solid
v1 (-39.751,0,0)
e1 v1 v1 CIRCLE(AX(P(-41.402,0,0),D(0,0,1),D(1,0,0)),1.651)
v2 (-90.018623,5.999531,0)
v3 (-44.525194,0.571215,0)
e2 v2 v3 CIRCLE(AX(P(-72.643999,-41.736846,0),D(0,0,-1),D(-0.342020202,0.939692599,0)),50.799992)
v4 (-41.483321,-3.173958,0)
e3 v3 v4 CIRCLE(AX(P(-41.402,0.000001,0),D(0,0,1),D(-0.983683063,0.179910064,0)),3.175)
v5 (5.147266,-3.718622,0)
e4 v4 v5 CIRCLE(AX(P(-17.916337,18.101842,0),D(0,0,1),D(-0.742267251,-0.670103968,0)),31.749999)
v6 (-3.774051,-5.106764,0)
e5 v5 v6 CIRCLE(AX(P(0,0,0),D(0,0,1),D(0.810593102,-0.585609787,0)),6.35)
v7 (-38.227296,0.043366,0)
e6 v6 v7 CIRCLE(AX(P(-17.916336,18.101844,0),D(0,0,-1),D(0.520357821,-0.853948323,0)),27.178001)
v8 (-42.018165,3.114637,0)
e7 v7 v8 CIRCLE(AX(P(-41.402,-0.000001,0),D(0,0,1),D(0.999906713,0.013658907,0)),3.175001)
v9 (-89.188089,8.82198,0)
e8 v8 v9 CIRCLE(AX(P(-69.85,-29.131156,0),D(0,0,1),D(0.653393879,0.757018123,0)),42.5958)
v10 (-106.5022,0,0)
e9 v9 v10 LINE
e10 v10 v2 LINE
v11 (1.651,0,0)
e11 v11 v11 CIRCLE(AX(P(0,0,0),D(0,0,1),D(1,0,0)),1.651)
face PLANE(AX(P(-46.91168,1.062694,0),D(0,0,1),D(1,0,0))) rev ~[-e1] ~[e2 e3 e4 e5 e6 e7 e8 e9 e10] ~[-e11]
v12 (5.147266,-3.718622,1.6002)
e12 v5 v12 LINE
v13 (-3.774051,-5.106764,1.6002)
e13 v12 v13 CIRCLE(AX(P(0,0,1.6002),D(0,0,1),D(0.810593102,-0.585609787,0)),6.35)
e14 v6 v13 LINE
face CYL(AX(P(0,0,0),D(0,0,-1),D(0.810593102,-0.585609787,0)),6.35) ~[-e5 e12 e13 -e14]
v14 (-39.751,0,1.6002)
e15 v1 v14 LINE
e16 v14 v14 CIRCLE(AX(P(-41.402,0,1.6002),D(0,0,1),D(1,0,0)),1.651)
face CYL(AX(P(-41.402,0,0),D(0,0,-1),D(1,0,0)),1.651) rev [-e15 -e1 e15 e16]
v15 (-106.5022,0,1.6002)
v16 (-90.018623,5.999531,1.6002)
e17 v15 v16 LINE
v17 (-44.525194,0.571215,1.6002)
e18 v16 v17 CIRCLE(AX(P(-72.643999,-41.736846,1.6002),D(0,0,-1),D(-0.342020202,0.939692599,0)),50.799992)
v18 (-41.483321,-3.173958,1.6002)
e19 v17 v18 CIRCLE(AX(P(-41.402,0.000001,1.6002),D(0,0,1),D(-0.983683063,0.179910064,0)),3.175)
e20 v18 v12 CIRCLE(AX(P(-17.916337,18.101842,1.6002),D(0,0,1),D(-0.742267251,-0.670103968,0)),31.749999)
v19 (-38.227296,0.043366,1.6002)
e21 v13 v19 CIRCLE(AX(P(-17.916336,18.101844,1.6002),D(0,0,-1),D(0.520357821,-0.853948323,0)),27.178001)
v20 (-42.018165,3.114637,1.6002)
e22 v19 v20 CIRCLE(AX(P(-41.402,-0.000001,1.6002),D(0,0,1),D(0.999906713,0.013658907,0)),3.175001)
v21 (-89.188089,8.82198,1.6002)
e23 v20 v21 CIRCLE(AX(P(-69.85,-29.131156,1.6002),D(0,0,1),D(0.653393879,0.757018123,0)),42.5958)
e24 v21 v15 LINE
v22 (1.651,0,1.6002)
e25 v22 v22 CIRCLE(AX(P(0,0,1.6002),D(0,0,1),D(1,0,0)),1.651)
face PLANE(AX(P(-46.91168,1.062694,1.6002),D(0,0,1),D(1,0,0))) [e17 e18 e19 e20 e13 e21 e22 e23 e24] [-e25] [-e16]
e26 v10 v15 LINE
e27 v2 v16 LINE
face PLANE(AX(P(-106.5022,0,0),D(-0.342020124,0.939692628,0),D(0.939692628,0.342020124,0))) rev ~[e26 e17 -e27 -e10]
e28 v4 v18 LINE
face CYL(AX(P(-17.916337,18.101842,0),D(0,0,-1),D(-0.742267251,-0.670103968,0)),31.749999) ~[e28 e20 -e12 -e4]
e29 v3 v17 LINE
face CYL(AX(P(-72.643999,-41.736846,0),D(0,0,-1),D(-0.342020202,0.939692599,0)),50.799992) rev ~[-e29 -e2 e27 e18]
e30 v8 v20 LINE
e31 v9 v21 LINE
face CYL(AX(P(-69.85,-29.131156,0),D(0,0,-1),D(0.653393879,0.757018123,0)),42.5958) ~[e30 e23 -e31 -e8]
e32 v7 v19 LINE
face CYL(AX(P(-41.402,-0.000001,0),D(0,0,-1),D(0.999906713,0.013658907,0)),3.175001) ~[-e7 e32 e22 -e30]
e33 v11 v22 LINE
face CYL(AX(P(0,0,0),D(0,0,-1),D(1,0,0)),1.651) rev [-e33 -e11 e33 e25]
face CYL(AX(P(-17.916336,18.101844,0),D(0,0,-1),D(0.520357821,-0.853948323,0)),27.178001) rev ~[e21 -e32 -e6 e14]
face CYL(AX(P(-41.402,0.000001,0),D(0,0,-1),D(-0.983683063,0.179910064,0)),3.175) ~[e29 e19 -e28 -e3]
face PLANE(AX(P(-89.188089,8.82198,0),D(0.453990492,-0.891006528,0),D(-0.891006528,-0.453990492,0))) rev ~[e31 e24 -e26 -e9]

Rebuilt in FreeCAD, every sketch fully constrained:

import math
import FreeCAD as App
import Part
import Sketcher
Q = App.Units.Quantity

doc = App.newDocument("Part")
body = doc.addObject("PartDesign::Body", "Body")

# Sketch on XY plane
sketch1 = doc.addObject("Sketcher::SketchObject", "Sketch")
body.addObject(sketch1)
sketch1.AttachmentSupport = (doc.XY_Plane, [""])
sketch1.MapMode = "FlatFace"
sketch1.addGeometry(Part.ArcOfCircle(Part.Circle(App.Vector(-17.9, 18.1, 0), App.Vector(0, 0, 1), 27.2), math.radians(-138), math.radians(-59)), False)
sketch1.addGeometry(Part.ArcOfCircle(Part.Circle(App.Vector(-41.4, 0, 0), App.Vector(0, 0, 1), 3.2), math.radians(1), math.radians(101)), False)
sketch1.addGeometry(Part.ArcOfCircle(Part.Circle(App.Vector(-69.9, -29.1, 0), App.Vector(0, 0, 1), 42.6), math.radians(49), math.radians(117)), False)
sketch1.addGeometry(Part.LineSegment(App.Vector(-89.2, 8.8, 0), App.Vector(-106.5, 0, 0)), False)
sketch1.addGeometry(Part.LineSegment(App.Vector(-106.5, 0, 0), App.Vector(-90, 6, 0)), False)
sketch1.addGeometry(Part.ArcOfCircle(Part.Circle(App.Vector(-72.6, -41.7, 0), App.Vector(0, 0, 1), 50.8), math.radians(56), math.radians(110)), False)
sketch1.addGeometry(Part.ArcOfCircle(Part.Circle(App.Vector(-41.4, 0, 0), App.Vector(0, 0, 1), 3.2), math.radians(170), math.radians(269)), False)
sketch1.addGeometry(Part.ArcOfCircle(Part.Circle(App.Vector(-17.9, 18.1, 0), App.Vector(0, 0, 1), 31.7), math.radians(-138), math.radians(-43)), False)
sketch1.addGeometry(Part.ArcOfCircle(Part.Circle(App.Vector(0, 0, 0), App.Vector(0, 0, 1), 6.3), math.radians(-36), math.radians(234)), False)
sketch1.addGeometry(Part.Circle(App.Vector(-41.4, 0, 0), App.Vector(0, 0, 1), 1.7), False)
sketch1.addGeometry(Part.Circle(App.Vector(0, 0, 0), App.Vector(0, 0, 1), 1.7), False)
sketch1.addConstraint(Sketcher.Constraint("Coincident", 0, 1, 1, 1))
sketch1.addConstraint(Sketcher.Constraint("Coincident", 1, 2, 2, 1))
sketch1.addConstraint(Sketcher.Constraint("Tangent", 2, 2, 3, 1))
sketch1.addConstraint(Sketcher.Constraint("Coincident", 3, 2, 4, 1))
sketch1.addConstraint(Sketcher.Constraint("Tangent", 4, 2, 5, 2))
sketch1.addConstraint(Sketcher.Constraint("Coincident", 5, 1, 6, 1))
sketch1.addConstraint(Sketcher.Constraint("Coincident", 6, 2, 7, 1))
sketch1.addConstraint(Sketcher.Constraint("Coincident", 7, 2, 8, 1))
sketch1.addConstraint(Sketcher.Constraint("Coincident", 8, 2, 0, 2))
sketch1.addConstraint(Sketcher.Constraint("Coincident", 8, 3, -1, 1))
sketch1.addConstraint(Sketcher.Constraint("Coincident", 10, 3, -1, 1))
sketch1.addConstraint(Sketcher.Constraint("Coincident", 6, 3, 1, 3))
sketch1.addConstraint(Sketcher.Constraint("Coincident", 7, 3, 0, 3))
sketch1.addConstraint(Sketcher.Constraint("Coincident", 9, 3, 1, 3))
sketch1.addConstraint(Sketcher.Constraint("Equal", 1, 6))
sketch1.addConstraint(Sketcher.Constraint("Equal", 9, 10))
sketch1.addConstraint(Sketcher.Constraint("PointOnObject", 1, 3, -1))
sketch1.addConstraint(Sketcher.Constraint("PointOnObject", 3, 2, -1))
sketch1.addConstraint(Sketcher.Constraint("Diameter", 9, Q("0.13 in")))
sketch1.addConstraint(Sketcher.Constraint("Radius", 0, Q("1.07 in")))
sketch1.addConstraint(Sketcher.Constraint("Radius", 7, Q("1.25 in")))
sketch1.addConstraint(Sketcher.Constraint("Radius", 8, Q("0.25 in")))
sketch1.addConstraint(Sketcher.Constraint("Angle", 3, Q("-153 deg")))
sketch1.addConstraint(Sketcher.Constraint("Angle", 4, Q("19.999999 deg")))
sketch1.addConstraint(Sketcher.Constraint("Radius", 1, Q("0.125 in")))
sketch1.addConstraint(Sketcher.Constraint("Radius", 2, Q("1.677 in")))
sketch1.addConstraint(Sketcher.Constraint("DistanceX", 1, 3, -1, 1, Q("1.63 in")))
sketch1.addConstraint(Sketcher.Constraint("DistanceX", 2, 3, -1, 1, Q("2.75 in")))
sketch1.addConstraint(Sketcher.Constraint("DistanceX", 5, 3, -1, 1, Q("2.86 in")))
sketch1.addConstraint(Sketcher.Constraint("DistanceX", 3, 2, -1, 1, Q("4.193 in")))
sketch1.addConstraint(Sketcher.Constraint("Radius", 5, 50.799992))
sketch1.addConstraint(Sketcher.Constraint("DistanceY", 2, 3, 0, 3, 47.233))
sketch1.addConstraint(Sketcher.Constraint("DistanceX", 6, 2, -1, 1, 41.483321))
pad1 = doc.addObject("PartDesign::Pad", "Pad")
body.addObject(pad1)
pad1.Profile = sketch1
pad1.Length = Q("0.063 in")

doc.recompute()
